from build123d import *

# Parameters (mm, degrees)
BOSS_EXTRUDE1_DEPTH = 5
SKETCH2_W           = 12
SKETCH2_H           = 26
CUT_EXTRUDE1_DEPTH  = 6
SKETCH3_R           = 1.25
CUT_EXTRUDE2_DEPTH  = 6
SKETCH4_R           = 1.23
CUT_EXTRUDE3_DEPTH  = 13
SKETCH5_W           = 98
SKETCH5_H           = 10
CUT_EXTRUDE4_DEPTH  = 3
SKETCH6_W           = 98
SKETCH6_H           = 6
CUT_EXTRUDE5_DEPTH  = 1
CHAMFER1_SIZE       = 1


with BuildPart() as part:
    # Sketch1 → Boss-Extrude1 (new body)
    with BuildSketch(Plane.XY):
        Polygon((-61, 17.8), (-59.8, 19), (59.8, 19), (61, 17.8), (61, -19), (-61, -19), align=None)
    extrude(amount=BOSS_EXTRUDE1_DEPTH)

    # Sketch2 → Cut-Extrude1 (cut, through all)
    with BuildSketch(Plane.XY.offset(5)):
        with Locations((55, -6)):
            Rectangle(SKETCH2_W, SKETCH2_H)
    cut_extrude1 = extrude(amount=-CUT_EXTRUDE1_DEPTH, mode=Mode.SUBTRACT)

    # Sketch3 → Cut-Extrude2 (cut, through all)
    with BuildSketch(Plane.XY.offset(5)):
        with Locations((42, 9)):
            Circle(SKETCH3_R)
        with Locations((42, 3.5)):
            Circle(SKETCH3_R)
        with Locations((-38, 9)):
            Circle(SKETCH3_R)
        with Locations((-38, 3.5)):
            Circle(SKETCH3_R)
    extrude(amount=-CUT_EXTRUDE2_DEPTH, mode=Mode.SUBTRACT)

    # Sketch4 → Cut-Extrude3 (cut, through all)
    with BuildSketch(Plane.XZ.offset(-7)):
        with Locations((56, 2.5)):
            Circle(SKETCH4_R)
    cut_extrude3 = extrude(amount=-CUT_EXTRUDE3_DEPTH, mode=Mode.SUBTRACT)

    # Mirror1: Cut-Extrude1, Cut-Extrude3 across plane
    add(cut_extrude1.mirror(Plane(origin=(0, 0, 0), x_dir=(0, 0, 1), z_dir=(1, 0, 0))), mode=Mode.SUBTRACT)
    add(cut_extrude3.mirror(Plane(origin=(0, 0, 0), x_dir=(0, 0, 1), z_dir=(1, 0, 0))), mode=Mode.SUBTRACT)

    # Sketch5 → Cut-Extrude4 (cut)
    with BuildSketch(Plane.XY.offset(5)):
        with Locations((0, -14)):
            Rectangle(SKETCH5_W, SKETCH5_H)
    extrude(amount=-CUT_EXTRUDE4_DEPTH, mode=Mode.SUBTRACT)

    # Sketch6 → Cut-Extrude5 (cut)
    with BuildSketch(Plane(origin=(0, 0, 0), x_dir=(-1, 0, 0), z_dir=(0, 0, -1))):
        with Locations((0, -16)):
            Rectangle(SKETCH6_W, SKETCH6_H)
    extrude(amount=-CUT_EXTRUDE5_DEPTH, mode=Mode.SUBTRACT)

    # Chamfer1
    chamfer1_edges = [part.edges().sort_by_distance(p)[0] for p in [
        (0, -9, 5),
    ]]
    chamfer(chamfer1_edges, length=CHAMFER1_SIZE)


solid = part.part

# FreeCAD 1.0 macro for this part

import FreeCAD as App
import Part
import Sketcher

V = App.Vector


def edges_at(feature, points):
    """Names of the edges that pass closest to the given points."""
    edges = feature.Shape.Edges
    near = lambda p: min(range(len(edges)), key=lambda i: edges[i].distToShape(Part.Vertex(*p))[0])
    return sorted({f"Edge{near(p) + 1}" for p in points})

doc = App.newDocument("Part")
body = doc.addObject("PartDesign::Body", "Body")

sketch1 = body.newObject("Sketcher::SketchObject", "Sketch")
sketch1.AttachmentSupport = (doc.getObject("XY_Plane"), [""])
sketch1.MapMode = "FlatFace"
sketch1.addGeometry(Part.LineSegment(V(-59.8, 19, 0), V(-61, 17.8, 0)), False)
sketch1.addGeometry(Part.LineSegment(V(-61, 17.8, 0), V(-61, -19, 0)), False)
sketch1.addGeometry(Part.LineSegment(V(-61, -19, 0), V(61, -19, 0)), False)
sketch1.addGeometry(Part.LineSegment(V(61, -19, 0), V(61, 17.8, 0)), False)
sketch1.addGeometry(Part.LineSegment(V(61, 17.8, 0), V(59.8, 19, 0)), False)
sketch1.addGeometry(Part.LineSegment(V(59.8, 19, 0), V(-59.8, 19, 0)), False)
sketch1.addConstraint(Sketcher.Constraint("Coincident", 0, 2, 1, 1))
sketch1.addConstraint(Sketcher.Constraint("Coincident", 1, 2, 2, 1))
sketch1.addConstraint(Sketcher.Constraint("Coincident", 2, 2, 3, 1))
sketch1.addConstraint(Sketcher.Constraint("Coincident", 3, 2, 4, 1))
sketch1.addConstraint(Sketcher.Constraint("Coincident", 4, 2, 5, 1))
sketch1.addConstraint(Sketcher.Constraint("Coincident", 5, 2, 0, 1))
sketch1.addConstraint(Sketcher.Constraint("Vertical", 1))
sketch1.addConstraint(Sketcher.Constraint("Horizontal", 2))
sketch1.addConstraint(Sketcher.Constraint("Vertical", 3))
sketch1.addConstraint(Sketcher.Constraint("Horizontal", 5))
sketch1.addConstraint(Sketcher.Constraint("Symmetric", 0, 2, 3, 2, -2))
sketch1.addConstraint(Sketcher.Constraint("Perpendicular", 0, 4))
sketch1.addConstraint(Sketcher.Constraint("Equal", 0, 4))
sketch1.addConstraint(Sketcher.Constraint("DistanceX", 2, 1, 2, 2, 122.0))
sketch1.addConstraint(Sketcher.Constraint("DistanceX", 5, 2, 5, 1, 119.6))
sketch1.addConstraint(Sketcher.Constraint("DistanceY", 1, 2, 1, 1, 36.8))
sketch1.addConstraint(Sketcher.Constraint("DistanceY", 1, 2, -1, 1, 19.0))
pad1 = body.newObject("PartDesign::Pad", "Pad")
pad1.Profile = sketch1
pad1.Length = 5

sketch2 = body.newObject("Sketcher::SketchObject", "Sketch001")
sketch2.AttachmentSupport = (doc.getObject("XY_Plane"), [""])
sketch2.MapMode = "FlatFace"
sketch2.AttachmentOffset = App.Placement(V(0, 0, 5), App.Rotation())
sketch2.addGeometry(Part.LineSegment(V(49, 7, 0), V(49, -19, 0)), False)
sketch2.addGeometry(Part.LineSegment(V(49, -19, 0), V(61, -19, 0)), False)
sketch2.addGeometry(Part.LineSegment(V(61, -19, 0), V(61, 7, 0)), False)
sketch2.addGeometry(Part.LineSegment(V(61, 7, 0), V(49, 7, 0)), False)
sketch2.addConstraint(Sketcher.Constraint("Coincident", 0, 2, 1, 1))
sketch2.addConstraint(Sketcher.Constraint("Coincident", 1, 2, 2, 1))
sketch2.addConstraint(Sketcher.Constraint("Coincident", 2, 2, 3, 1))
sketch2.addConstraint(Sketcher.Constraint("Coincident", 3, 2, 0, 1))
sketch2.addConstraint(Sketcher.Constraint("Vertical", 0))
sketch2.addConstraint(Sketcher.Constraint("Horizontal", 1))
sketch2.addConstraint(Sketcher.Constraint("Vertical", 2))
sketch2.addConstraint(Sketcher.Constraint("Horizontal", 3))
sketch2.addConstraint(Sketcher.Constraint("DistanceX", 1, 1, 1, 2, 12.0))
sketch2.addConstraint(Sketcher.Constraint("DistanceY", 0, 2, 0, 1, 26.0))
sketch2.addConstraint(Sketcher.Constraint("DistanceX", -1, 1, 0, 2, 49.0))
sketch2.addConstraint(Sketcher.Constraint("DistanceY", 0, 2, -1, 1, 19.0))
pocket1 = body.newObject("PartDesign::Pocket", "Pocket")
pocket1.Profile = sketch2
pocket1.Type = "ThroughAll"

sketch3 = body.newObject("Sketcher::SketchObject", "Sketch002")
sketch3.AttachmentSupport = (doc.getObject("XY_Plane"), [""])
sketch3.MapMode = "FlatFace"
sketch3.AttachmentOffset = App.Placement(V(0, 0, 5), App.Rotation())
sketch3.addGeometry(Part.Circle(V(42, 9, 0), V(0, 0, 1), 1.2), False)
sketch3.addGeometry(Part.Circle(V(42, 3.5, 0), V(0, 0, 1), 1.2), False)
sketch3.addGeometry(Part.Circle(V(-38, 9, 0), V(0, 0, 1), 1.2), False)
sketch3.addGeometry(Part.Circle(V(-38, 3.5, 0), V(0, 0, 1), 1.2), False)
sketch3.addConstraint(Sketcher.Constraint("Equal", 0, 1))
sketch3.addConstraint(Sketcher.Constraint("Equal", 1, 2))
sketch3.addConstraint(Sketcher.Constraint("Equal", 2, 3))
sketch3.addConstraint(Sketcher.Constraint("Horizontal", 0, 3, 2, 3))
sketch3.addConstraint(Sketcher.Constraint("Horizontal", 1, 3, 3, 3))
sketch3.addConstraint(Sketcher.Constraint("Vertical", 0, 3, 1, 3))
sketch3.addConstraint(Sketcher.Constraint("Vertical", 2, 3, 3, 3))
sketch3.addConstraint(Sketcher.Constraint("Diameter", 0, 2.5))
sketch3.addConstraint(Sketcher.Constraint("DistanceX", -1, 1, 0, 3, 42.0))
sketch3.addConstraint(Sketcher.Constraint("DistanceY", -1, 1, 0, 3, 9.0))
sketch3.addConstraint(Sketcher.Constraint("DistanceX", 2, 3, -1, 1, 38.0))
sketch3.addConstraint(Sketcher.Constraint("DistanceY", -1, 1, 1, 3, 3.5))
pocket2 = body.newObject("PartDesign::Pocket", "Pocket001")
pocket2.Profile = sketch3
pocket2.Type = "ThroughAll"

sketch4 = body.newObject("Sketcher::SketchObject", "Sketch003")
sketch4.AttachmentSupport = (doc.getObject("XZ_Plane"), [""])
sketch4.MapMode = "FlatFace"
sketch4.AttachmentOffset = App.Placement(V(0, 0, -7), App.Rotation())
sketch4.addGeometry(Part.Circle(V(56, 2.5, 0), V(0, 0, 1), 1.2), False)
sketch4.addConstraint(Sketcher.Constraint("Diameter", 0, 2.46))
sketch4.addConstraint(Sketcher.Constraint("DistanceX", -1, 1, 0, 3, 56.0))
sketch4.addConstraint(Sketcher.Constraint("DistanceY", -1, 1, 0, 3, 2.5))
pocket3 = body.newObject("PartDesign::Pocket", "Pocket002")
pocket3.Profile = sketch4
pocket3.Type = "ThroughAll"
doc.recompute()

mirrored = body.newObject("PartDesign::Mirrored", "Mirrored")
mirrored.Originals = [pocket1, pocket3]
mirrored.MirrorPlane = (doc.getObject("YZ_Plane"), [""])
body.Tip = mirrored

sketch5 = body.newObject("Sketcher::SketchObject", "Sketch004")
sketch5.AttachmentSupport = (doc.getObject("XY_Plane"), [""])
sketch5.MapMode = "FlatFace"
sketch5.AttachmentOffset = App.Placement(V(0, 0, 5), App.Rotation())
sketch5.addGeometry(Part.LineSegment(V(-49, -9, 0), V(-49, -19, 0)), False)
sketch5.addGeometry(Part.LineSegment(V(-49, -19, 0), V(49, -19, 0)), False)
sketch5.addGeometry(Part.LineSegment(V(49, -19, 0), V(49, -9, 0)), False)
sketch5.addGeometry(Part.LineSegment(V(49, -9, 0), V(-49, -9, 0)), False)
sketch5.addConstraint(Sketcher.Constraint("Coincident", 0, 2, 1, 1))
sketch5.addConstraint(Sketcher.Constraint("Coincident", 1, 2, 2, 1))
sketch5.addConstraint(Sketcher.Constraint("Coincident", 2, 2, 3, 1))
sketch5.addConstraint(Sketcher.Constraint("Coincident", 3, 2, 0, 1))
sketch5.addConstraint(Sketcher.Constraint("Vertical", 0))
sketch5.addConstraint(Sketcher.Constraint("Horizontal", 1))
sketch5.addConstraint(Sketcher.Constraint("Vertical", 2))
sketch5.addConstraint(Sketcher.Constraint("Horizontal", 3))
sketch5.addConstraint(Sketcher.Constraint("DistanceX", 1, 1, 1, 2, 98.0))
sketch5.addConstraint(Sketcher.Constraint("DistanceY", 0, 2, 0, 1, 10.0))
sketch5.addConstraint(Sketcher.Constraint("DistanceX", 0, 2, -1, 1, 49.0))
sketch5.addConstraint(Sketcher.Constraint("DistanceY", 0, 2, -1, 1, 19.0))
pocket4 = body.newObject("PartDesign::Pocket", "Pocket003")
pocket4.Profile = sketch5
pocket4.Length = 3

sketch6 = body.newObject("Sketcher::SketchObject", "Sketch005")
sketch6.AttachmentSupport = (doc.getObject("XY_Plane"), [""])
sketch6.MapMode = "FlatFace"
sketch6.addGeometry(Part.LineSegment(V(49, -13, 0), V(49, -19, 0)), False)
sketch6.addGeometry(Part.LineSegment(V(49, -19, 0), V(-49, -19, 0)), False)
sketch6.addGeometry(Part.LineSegment(V(-49, -19, 0), V(-49, -13, 0)), False)
sketch6.addGeometry(Part.LineSegment(V(-49, -13, 0), V(49, -13, 0)), False)
sketch6.addConstraint(Sketcher.Constraint("Coincident", 0, 2, 1, 1))
sketch6.addConstraint(Sketcher.Constraint("Coincident", 1, 2, 2, 1))
sketch6.addConstraint(Sketcher.Constraint("Coincident", 2, 2, 3, 1))
sketch6.addConstraint(Sketcher.Constraint("Coincident", 3, 2, 0, 1))
sketch6.addConstraint(Sketcher.Constraint("Vertical", 0))
sketch6.addConstraint(Sketcher.Constraint("Horizontal", 1))
sketch6.addConstraint(Sketcher.Constraint("Vertical", 2))
sketch6.addConstraint(Sketcher.Constraint("Horizontal", 3))
sketch6.addConstraint(Sketcher.Constraint("DistanceX", 1, 2, 1, 1, 98.0))
sketch6.addConstraint(Sketcher.Constraint("DistanceY", 0, 2, 0, 1, 6.0))
sketch6.addConstraint(Sketcher.Constraint("DistanceX", -1, 1, 0, 2, 49.0))
sketch6.addConstraint(Sketcher.Constraint("DistanceY", 0, 2, -1, 1, 19.0))
pocket5 = body.newObject("PartDesign::Pocket", "Pocket004")
pocket5.Profile = sketch6
pocket5.Length = 1
pocket5.Reversed = True
doc.recompute()

chamfer = body.newObject("PartDesign::Chamfer", "Chamfer")
chamfer.Base = (pocket5, edges_at(pocket5, [(0, -9, 5)]))
chamfer.Size = 1

doc.recompute()
